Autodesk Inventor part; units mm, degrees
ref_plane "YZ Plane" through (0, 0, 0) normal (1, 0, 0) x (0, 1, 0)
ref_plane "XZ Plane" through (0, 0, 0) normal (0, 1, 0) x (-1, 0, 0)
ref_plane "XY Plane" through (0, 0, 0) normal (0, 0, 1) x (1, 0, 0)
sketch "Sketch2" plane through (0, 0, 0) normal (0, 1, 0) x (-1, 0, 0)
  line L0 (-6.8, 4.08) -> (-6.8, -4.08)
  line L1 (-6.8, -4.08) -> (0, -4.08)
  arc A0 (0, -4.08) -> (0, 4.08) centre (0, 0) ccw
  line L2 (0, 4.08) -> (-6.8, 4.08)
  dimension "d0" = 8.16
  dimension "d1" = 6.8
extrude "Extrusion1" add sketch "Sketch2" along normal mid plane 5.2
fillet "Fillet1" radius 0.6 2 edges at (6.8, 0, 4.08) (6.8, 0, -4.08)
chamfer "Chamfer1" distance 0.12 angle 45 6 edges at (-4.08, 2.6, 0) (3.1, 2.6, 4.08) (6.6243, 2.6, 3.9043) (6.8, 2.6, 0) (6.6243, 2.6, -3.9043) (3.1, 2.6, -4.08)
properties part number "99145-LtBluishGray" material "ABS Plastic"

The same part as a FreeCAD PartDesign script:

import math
import FreeCAD as App
import Part
import Sketcher
from FreeCAD import Vector


def edges_at(feature, points):
    """Names of the edges that pass closest to the given points."""
    edges = feature.Shape.Edges
    near = lambda p: min(range(len(edges)), key=lambda i: edges[i].distToShape(Part.Vertex(*p))[0])
    return sorted({f"Edge{near(p) + 1}" for p in points})

doc = App.newDocument("Part")
body = doc.addObject("PartDesign::Body", "Body")

# Sketch on XZ plane
sketch1 = body.newObject("Sketcher::SketchObject", "Sketch")
sketch1.AttachmentSupport = (doc.getObject("XZ_Plane"), [""])
sketch1.MapMode = "FlatFace"
sketch1.addGeometry([
    Part.LineSegment(Vector(0, 4.1, 0), Vector(6.8, 4.1, 0)),
    Part.LineSegment(Vector(6.8, 4.1, 0), Vector(6.8, -4.1, 0)),
    Part.LineSegment(Vector(6.8, -4.1, 0), Vector(0, -4.1, 0)),
    Part.ArcOfCircle(Part.Circle(Vector(0, 0, 0), Vector(0, 0, 1), 4.1), math.radians(90), math.radians(270)),
], False)
sketch1.addConstraint([
    Sketcher.Constraint("Coincident", 0, 2, 1, 1),
    Sketcher.Constraint("Coincident", 1, 2, 2, 1),
    Sketcher.Constraint("Tangent", 2, 2, 3, 2),
    Sketcher.Constraint("Tangent", 3, 1, 0, 1),
    Sketcher.Constraint("Horizontal", 0),
    Sketcher.Constraint("Vertical", 1),
    Sketcher.Constraint("Horizontal", 2),
    Sketcher.Constraint("Coincident", 3, 3, -1, 1),
    Sketcher.Constraint("Radius", 3, 4.08),
    Sketcher.Constraint("DistanceX", 0, 1, 0, 2, 6.8),
])
pad1 = body.newObject("PartDesign::Pad", "Pad")
pad1.Profile = sketch1
pad1.Length = 5.2
pad1.Midplane = True
doc.recompute()

fillet = body.newObject("PartDesign::Fillet", "Fillet")
fillet.Base = (pad1, edges_at(pad1, [(6.8, 0, 4.08), (6.8, 0, -4.08)]))
fillet.Radius = 0.6
doc.recompute()

chamfer = body.newObject("PartDesign::Chamfer", "Chamfer")
chamfer.Base = (fillet, edges_at(fillet, [
    (-4.08, 2.6, 0),
    (3.1, 2.6, 4.08),
    (6.624, 2.6, 3.904),
    (6.8, 2.6, 0),
    (6.624, 2.6, -3.904),
    (3.1, 2.6, -4.08),
]))
chamfer.Size = 0.12

doc.recompute()
